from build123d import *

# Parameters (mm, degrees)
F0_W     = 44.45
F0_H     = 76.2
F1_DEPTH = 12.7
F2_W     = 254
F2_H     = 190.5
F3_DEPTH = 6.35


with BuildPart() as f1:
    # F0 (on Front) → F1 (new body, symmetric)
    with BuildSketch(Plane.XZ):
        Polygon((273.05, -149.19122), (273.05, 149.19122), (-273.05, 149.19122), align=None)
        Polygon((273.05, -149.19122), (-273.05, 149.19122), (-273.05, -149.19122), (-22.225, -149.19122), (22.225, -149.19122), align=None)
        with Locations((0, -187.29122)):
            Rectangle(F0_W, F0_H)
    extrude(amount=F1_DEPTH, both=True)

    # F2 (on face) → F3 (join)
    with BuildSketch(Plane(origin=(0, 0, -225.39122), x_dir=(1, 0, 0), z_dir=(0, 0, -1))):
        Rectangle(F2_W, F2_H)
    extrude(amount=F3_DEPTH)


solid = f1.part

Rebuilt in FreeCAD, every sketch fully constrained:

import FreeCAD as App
import Part
import Sketcher
from FreeCAD import Vector
Q = App.Units.Quantity

doc = App.newDocument("Part")
body = doc.addObject("PartDesign::Body", "Body")

sketch1 = body.newObject("Sketcher::SketchObject", "Sketch")
sketch1.AttachmentSupport = (doc.getObject("XZ_Plane"), [""])
sketch1.MapMode = "FlatFace"
sketch1.addGeometry(Part.LineSegment(Vector(273.05, -149.19122, 0), Vector(273.05, 149.19122, 0)), False)
sketch1.addGeometry(Part.LineSegment(Vector(273.05, 149.19122, 0), Vector(-273.05, 149.19122, 0)), False)
sketch1.addGeometry(Part.LineSegment(Vector(-273.05, 149.19122, 0), Vector(-273.05, -149.19122, 0)), False)
sketch1.addGeometry(Part.LineSegment(Vector(-273.05, -149.19122, 0), Vector(-22.225, -149.19122, 0)), False)
sketch1.addGeometry(Part.LineSegment(Vector(-22.225, -149.19122, 0), Vector(-22.225, -225.39122, 0)), False)
sketch1.addGeometry(Part.LineSegment(Vector(-22.225, -225.39122, 0), Vector(22.225, -225.39122, 0)), False)
sketch1.addGeometry(Part.LineSegment(Vector(22.225, -225.39122, 0), Vector(22.225, -149.19122, 0)), False)
sketch1.addGeometry(Part.LineSegment(Vector(22.225, -149.19122, 0), Vector(273.05, -149.19122, 0)), False)
sketch1.addConstraint(Sketcher.Constraint("Coincident", 0, 2, 1, 1))
sketch1.addConstraint(Sketcher.Constraint("Coincident", 1, 2, 2, 1))
sketch1.addConstraint(Sketcher.Constraint("Coincident", 2, 2, 3, 1))
sketch1.addConstraint(Sketcher.Constraint("Coincident", 3, 2, 4, 1))
sketch1.addConstraint(Sketcher.Constraint("Coincident", 4, 2, 5, 1))
sketch1.addConstraint(Sketcher.Constraint("Coincident", 5, 2, 6, 1))
sketch1.addConstraint(Sketcher.Constraint("Coincident", 6, 2, 7, 1))
sketch1.addConstraint(Sketcher.Constraint("Coincident", 7, 2, 0, 1))
sketch1.addConstraint(Sketcher.Constraint("Vertical", 0))
sketch1.addConstraint(Sketcher.Constraint("Horizontal", 1))
sketch1.addConstraint(Sketcher.Constraint("Vertical", 2))
sketch1.addConstraint(Sketcher.Constraint("Horizontal", 3))
sketch1.addConstraint(Sketcher.Constraint("Vertical", 4))
sketch1.addConstraint(Sketcher.Constraint("Horizontal", 5))
sketch1.addConstraint(Sketcher.Constraint("Vertical", 6))
sketch1.addConstraint(Sketcher.Constraint("Horizontal", 7))
sketch1.addConstraint(Sketcher.Constraint("Symmetric", 0, 2, 2, 2, -1, 1))
sketch1.addConstraint(Sketcher.Constraint("Symmetric", 3, 2, 6, 2, -2))
sketch1.addConstraint(Sketcher.Constraint("DistanceY", 4, 2, 4, 1, Q("3 in")))
sketch1.addConstraint(Sketcher.Constraint("DistanceX", 1, 2, 1, 1, Q("21.5 in")))
sketch1.addConstraint(Sketcher.Constraint("DistanceX", 5, 1, 5, 2, Q("1.75 in")))
sketch1.addConstraint(Sketcher.Constraint("DistanceY", 0, 1, 0, 2, 298.38244))
pad1 = body.newObject("PartDesign::Pad", "Pad")
pad1.Profile = sketch1
pad1.Length = Q("1 in")
pad1.Midplane = True

sketch2 = body.newObject("Sketcher::SketchObject", "Sketch001")
sketch2.AttachmentSupport = (doc.getObject("XY_Plane"), [""])
sketch2.MapMode = "FlatFace"
sketch2.AttachmentOffset = App.Placement(Vector(0, 0, -225.39122), App.Rotation())
sketch2.addGeometry(Part.LineSegment(Vector(-127, -95.25, 0), Vector(-127, 95.25, 0)), False)
sketch2.addGeometry(Part.LineSegment(Vector(-127, 95.25, 0), Vector(127, 95.25, 0)), False)
sketch2.addGeometry(Part.LineSegment(Vector(127, 95.25, 0), Vector(127, -95.25, 0)), False)
sketch2.addGeometry(Part.LineSegment(Vector(127, -95.25, 0), Vector(-127, -95.25, 0)), False)
sketch2.addConstraint(Sketcher.Constraint("Coincident", 0, 2, 1, 1))
sketch2.addConstraint(Sketcher.Constraint("Coincident", 1, 2, 2, 1))
sketch2.addConstraint(Sketcher.Constraint("Coincident", 2, 2, 3, 1))
sketch2.addConstraint(Sketcher.Constraint("Coincident", 3, 2, 0, 1))
sketch2.addConstraint(Sketcher.Constraint("Vertical", 0))
sketch2.addConstraint(Sketcher.Constraint("Horizontal", 1))
sketch2.addConstraint(Sketcher.Constraint("Vertical", 2))
sketch2.addConstraint(Sketcher.Constraint("Horizontal", 3))
sketch2.addConstraint(Sketcher.Constraint("Symmetric", 0, 2, 2, 2, -1, 1))
sketch2.addConstraint(Sketcher.Constraint("DistanceX", 1, 1, 1, 2, Q("10 in")))
sketch2.addConstraint(Sketcher.Constraint("DistanceY", 0, 1, 0, 2, Q("7.5 in")))
pad2 = body.newObject("PartDesign::Pad", "Pad001")
pad2.Profile = sketch2
pad2.Length = Q("0.25 in")
pad2.Reversed = True

doc.recompute()
